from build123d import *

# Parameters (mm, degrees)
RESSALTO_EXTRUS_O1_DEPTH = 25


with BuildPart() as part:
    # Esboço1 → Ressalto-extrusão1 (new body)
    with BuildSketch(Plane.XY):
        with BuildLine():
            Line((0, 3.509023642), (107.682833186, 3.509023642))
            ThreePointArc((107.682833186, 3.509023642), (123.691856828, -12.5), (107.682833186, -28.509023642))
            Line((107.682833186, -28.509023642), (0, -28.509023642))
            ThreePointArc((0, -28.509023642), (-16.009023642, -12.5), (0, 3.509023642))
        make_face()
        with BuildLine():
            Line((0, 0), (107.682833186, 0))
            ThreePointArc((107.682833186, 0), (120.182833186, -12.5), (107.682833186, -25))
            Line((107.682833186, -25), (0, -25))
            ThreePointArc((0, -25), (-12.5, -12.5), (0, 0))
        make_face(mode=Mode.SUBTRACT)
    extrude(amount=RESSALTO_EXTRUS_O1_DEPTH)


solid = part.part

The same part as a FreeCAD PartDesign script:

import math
import FreeCAD as App
import Part
import Sketcher
from FreeCAD import Vector
Q = App.Units.Quantity

doc = App.newDocument("Part")
body = doc.addObject("PartDesign::Body", "Body")

# Sketch on XY plane
sketch1 = body.newObject("Sketcher::SketchObject", "Sketch")
sketch1.AttachmentSupport = (doc.getObject("XY_Plane"), [""])
sketch1.MapMode = "FlatFace"
sketch1.addGeometry(Part.LineSegment(Vector(108, 4, 0), Vector(0, 4, 0)), False)
sketch1.addGeometry(Part.ArcOfCircle(Part.Circle(Vector(0, -12, 0), Vector(0, 0, 1), 16), math.radians(90), math.radians(270)), False)
sketch1.addGeometry(Part.LineSegment(Vector(0, -29, 0), Vector(108, -29, 0)), False)
sketch1.addGeometry(Part.ArcOfCircle(Part.Circle(Vector(108, -12, 0), Vector(0, 0, 1), 16), math.radians(-90), math.radians(90)), False)
sketch1.addGeometry(Part.LineSegment(Vector(0, 0, 0), Vector(108, 0, 0)), False)
sketch1.addGeometry(Part.ArcOfCircle(Part.Circle(Vector(108, -12, 0), Vector(0, 0, 1), 12), math.radians(-90), math.radians(90)), False)
sketch1.addGeometry(Part.LineSegment(Vector(108, -25, 0), Vector(0, -25, 0)), False)
sketch1.addGeometry(Part.ArcOfCircle(Part.Circle(Vector(0, -12, 0), Vector(0, 0, 1), 12), math.radians(90), math.radians(270)), False)
sketch1.addConstraint(Sketcher.Constraint("Tangent", 0, 2, 1, 1))
sketch1.addConstraint(Sketcher.Constraint("Tangent", 1, 2, 2, 1))
sketch1.addConstraint(Sketcher.Constraint("Tangent", 2, 2, 3, 1))
sketch1.addConstraint(Sketcher.Constraint("Tangent", 3, 2, 0, 1))
sketch1.addConstraint(Sketcher.Constraint("Tangent", 4, 2, 5, 2))
sketch1.addConstraint(Sketcher.Constraint("Tangent", 5, 1, 6, 1))
sketch1.addConstraint(Sketcher.Constraint("Tangent", 6, 2, 7, 2))
sketch1.addConstraint(Sketcher.Constraint("Tangent", 7, 1, 4, 1))
sketch1.addConstraint(Sketcher.Constraint("Horizontal", 0))
sketch1.addConstraint(Sketcher.Constraint("Horizontal", 2))
sketch1.addConstraint(Sketcher.Constraint("Horizontal", 4))
sketch1.addConstraint(Sketcher.Constraint("Horizontal", 6))
sketch1.addConstraint(Sketcher.Constraint("Coincident", 7, 1, -1, 1))
sketch1.addConstraint(Sketcher.Constraint("Coincident", 5, 3, 3, 3))
sketch1.addConstraint(Sketcher.Constraint("PointOnObject", 1, 3, -2))
sketch1.addConstraint(Sketcher.Constraint("Radius", 5, Q("12.5 mm")))
sketch1.addConstraint(Sketcher.Constraint("Radius", 1, Q("16.009024 mm")))
sketch1.addConstraint(Sketcher.Constraint("DistanceX", 0, 2, 0, 1, Q("107.682833 mm")))
pad1 = body.newObject("PartDesign::Pad", "Pad")
pad1.Profile = sketch1
pad1.Length = 25

doc.recompute()
